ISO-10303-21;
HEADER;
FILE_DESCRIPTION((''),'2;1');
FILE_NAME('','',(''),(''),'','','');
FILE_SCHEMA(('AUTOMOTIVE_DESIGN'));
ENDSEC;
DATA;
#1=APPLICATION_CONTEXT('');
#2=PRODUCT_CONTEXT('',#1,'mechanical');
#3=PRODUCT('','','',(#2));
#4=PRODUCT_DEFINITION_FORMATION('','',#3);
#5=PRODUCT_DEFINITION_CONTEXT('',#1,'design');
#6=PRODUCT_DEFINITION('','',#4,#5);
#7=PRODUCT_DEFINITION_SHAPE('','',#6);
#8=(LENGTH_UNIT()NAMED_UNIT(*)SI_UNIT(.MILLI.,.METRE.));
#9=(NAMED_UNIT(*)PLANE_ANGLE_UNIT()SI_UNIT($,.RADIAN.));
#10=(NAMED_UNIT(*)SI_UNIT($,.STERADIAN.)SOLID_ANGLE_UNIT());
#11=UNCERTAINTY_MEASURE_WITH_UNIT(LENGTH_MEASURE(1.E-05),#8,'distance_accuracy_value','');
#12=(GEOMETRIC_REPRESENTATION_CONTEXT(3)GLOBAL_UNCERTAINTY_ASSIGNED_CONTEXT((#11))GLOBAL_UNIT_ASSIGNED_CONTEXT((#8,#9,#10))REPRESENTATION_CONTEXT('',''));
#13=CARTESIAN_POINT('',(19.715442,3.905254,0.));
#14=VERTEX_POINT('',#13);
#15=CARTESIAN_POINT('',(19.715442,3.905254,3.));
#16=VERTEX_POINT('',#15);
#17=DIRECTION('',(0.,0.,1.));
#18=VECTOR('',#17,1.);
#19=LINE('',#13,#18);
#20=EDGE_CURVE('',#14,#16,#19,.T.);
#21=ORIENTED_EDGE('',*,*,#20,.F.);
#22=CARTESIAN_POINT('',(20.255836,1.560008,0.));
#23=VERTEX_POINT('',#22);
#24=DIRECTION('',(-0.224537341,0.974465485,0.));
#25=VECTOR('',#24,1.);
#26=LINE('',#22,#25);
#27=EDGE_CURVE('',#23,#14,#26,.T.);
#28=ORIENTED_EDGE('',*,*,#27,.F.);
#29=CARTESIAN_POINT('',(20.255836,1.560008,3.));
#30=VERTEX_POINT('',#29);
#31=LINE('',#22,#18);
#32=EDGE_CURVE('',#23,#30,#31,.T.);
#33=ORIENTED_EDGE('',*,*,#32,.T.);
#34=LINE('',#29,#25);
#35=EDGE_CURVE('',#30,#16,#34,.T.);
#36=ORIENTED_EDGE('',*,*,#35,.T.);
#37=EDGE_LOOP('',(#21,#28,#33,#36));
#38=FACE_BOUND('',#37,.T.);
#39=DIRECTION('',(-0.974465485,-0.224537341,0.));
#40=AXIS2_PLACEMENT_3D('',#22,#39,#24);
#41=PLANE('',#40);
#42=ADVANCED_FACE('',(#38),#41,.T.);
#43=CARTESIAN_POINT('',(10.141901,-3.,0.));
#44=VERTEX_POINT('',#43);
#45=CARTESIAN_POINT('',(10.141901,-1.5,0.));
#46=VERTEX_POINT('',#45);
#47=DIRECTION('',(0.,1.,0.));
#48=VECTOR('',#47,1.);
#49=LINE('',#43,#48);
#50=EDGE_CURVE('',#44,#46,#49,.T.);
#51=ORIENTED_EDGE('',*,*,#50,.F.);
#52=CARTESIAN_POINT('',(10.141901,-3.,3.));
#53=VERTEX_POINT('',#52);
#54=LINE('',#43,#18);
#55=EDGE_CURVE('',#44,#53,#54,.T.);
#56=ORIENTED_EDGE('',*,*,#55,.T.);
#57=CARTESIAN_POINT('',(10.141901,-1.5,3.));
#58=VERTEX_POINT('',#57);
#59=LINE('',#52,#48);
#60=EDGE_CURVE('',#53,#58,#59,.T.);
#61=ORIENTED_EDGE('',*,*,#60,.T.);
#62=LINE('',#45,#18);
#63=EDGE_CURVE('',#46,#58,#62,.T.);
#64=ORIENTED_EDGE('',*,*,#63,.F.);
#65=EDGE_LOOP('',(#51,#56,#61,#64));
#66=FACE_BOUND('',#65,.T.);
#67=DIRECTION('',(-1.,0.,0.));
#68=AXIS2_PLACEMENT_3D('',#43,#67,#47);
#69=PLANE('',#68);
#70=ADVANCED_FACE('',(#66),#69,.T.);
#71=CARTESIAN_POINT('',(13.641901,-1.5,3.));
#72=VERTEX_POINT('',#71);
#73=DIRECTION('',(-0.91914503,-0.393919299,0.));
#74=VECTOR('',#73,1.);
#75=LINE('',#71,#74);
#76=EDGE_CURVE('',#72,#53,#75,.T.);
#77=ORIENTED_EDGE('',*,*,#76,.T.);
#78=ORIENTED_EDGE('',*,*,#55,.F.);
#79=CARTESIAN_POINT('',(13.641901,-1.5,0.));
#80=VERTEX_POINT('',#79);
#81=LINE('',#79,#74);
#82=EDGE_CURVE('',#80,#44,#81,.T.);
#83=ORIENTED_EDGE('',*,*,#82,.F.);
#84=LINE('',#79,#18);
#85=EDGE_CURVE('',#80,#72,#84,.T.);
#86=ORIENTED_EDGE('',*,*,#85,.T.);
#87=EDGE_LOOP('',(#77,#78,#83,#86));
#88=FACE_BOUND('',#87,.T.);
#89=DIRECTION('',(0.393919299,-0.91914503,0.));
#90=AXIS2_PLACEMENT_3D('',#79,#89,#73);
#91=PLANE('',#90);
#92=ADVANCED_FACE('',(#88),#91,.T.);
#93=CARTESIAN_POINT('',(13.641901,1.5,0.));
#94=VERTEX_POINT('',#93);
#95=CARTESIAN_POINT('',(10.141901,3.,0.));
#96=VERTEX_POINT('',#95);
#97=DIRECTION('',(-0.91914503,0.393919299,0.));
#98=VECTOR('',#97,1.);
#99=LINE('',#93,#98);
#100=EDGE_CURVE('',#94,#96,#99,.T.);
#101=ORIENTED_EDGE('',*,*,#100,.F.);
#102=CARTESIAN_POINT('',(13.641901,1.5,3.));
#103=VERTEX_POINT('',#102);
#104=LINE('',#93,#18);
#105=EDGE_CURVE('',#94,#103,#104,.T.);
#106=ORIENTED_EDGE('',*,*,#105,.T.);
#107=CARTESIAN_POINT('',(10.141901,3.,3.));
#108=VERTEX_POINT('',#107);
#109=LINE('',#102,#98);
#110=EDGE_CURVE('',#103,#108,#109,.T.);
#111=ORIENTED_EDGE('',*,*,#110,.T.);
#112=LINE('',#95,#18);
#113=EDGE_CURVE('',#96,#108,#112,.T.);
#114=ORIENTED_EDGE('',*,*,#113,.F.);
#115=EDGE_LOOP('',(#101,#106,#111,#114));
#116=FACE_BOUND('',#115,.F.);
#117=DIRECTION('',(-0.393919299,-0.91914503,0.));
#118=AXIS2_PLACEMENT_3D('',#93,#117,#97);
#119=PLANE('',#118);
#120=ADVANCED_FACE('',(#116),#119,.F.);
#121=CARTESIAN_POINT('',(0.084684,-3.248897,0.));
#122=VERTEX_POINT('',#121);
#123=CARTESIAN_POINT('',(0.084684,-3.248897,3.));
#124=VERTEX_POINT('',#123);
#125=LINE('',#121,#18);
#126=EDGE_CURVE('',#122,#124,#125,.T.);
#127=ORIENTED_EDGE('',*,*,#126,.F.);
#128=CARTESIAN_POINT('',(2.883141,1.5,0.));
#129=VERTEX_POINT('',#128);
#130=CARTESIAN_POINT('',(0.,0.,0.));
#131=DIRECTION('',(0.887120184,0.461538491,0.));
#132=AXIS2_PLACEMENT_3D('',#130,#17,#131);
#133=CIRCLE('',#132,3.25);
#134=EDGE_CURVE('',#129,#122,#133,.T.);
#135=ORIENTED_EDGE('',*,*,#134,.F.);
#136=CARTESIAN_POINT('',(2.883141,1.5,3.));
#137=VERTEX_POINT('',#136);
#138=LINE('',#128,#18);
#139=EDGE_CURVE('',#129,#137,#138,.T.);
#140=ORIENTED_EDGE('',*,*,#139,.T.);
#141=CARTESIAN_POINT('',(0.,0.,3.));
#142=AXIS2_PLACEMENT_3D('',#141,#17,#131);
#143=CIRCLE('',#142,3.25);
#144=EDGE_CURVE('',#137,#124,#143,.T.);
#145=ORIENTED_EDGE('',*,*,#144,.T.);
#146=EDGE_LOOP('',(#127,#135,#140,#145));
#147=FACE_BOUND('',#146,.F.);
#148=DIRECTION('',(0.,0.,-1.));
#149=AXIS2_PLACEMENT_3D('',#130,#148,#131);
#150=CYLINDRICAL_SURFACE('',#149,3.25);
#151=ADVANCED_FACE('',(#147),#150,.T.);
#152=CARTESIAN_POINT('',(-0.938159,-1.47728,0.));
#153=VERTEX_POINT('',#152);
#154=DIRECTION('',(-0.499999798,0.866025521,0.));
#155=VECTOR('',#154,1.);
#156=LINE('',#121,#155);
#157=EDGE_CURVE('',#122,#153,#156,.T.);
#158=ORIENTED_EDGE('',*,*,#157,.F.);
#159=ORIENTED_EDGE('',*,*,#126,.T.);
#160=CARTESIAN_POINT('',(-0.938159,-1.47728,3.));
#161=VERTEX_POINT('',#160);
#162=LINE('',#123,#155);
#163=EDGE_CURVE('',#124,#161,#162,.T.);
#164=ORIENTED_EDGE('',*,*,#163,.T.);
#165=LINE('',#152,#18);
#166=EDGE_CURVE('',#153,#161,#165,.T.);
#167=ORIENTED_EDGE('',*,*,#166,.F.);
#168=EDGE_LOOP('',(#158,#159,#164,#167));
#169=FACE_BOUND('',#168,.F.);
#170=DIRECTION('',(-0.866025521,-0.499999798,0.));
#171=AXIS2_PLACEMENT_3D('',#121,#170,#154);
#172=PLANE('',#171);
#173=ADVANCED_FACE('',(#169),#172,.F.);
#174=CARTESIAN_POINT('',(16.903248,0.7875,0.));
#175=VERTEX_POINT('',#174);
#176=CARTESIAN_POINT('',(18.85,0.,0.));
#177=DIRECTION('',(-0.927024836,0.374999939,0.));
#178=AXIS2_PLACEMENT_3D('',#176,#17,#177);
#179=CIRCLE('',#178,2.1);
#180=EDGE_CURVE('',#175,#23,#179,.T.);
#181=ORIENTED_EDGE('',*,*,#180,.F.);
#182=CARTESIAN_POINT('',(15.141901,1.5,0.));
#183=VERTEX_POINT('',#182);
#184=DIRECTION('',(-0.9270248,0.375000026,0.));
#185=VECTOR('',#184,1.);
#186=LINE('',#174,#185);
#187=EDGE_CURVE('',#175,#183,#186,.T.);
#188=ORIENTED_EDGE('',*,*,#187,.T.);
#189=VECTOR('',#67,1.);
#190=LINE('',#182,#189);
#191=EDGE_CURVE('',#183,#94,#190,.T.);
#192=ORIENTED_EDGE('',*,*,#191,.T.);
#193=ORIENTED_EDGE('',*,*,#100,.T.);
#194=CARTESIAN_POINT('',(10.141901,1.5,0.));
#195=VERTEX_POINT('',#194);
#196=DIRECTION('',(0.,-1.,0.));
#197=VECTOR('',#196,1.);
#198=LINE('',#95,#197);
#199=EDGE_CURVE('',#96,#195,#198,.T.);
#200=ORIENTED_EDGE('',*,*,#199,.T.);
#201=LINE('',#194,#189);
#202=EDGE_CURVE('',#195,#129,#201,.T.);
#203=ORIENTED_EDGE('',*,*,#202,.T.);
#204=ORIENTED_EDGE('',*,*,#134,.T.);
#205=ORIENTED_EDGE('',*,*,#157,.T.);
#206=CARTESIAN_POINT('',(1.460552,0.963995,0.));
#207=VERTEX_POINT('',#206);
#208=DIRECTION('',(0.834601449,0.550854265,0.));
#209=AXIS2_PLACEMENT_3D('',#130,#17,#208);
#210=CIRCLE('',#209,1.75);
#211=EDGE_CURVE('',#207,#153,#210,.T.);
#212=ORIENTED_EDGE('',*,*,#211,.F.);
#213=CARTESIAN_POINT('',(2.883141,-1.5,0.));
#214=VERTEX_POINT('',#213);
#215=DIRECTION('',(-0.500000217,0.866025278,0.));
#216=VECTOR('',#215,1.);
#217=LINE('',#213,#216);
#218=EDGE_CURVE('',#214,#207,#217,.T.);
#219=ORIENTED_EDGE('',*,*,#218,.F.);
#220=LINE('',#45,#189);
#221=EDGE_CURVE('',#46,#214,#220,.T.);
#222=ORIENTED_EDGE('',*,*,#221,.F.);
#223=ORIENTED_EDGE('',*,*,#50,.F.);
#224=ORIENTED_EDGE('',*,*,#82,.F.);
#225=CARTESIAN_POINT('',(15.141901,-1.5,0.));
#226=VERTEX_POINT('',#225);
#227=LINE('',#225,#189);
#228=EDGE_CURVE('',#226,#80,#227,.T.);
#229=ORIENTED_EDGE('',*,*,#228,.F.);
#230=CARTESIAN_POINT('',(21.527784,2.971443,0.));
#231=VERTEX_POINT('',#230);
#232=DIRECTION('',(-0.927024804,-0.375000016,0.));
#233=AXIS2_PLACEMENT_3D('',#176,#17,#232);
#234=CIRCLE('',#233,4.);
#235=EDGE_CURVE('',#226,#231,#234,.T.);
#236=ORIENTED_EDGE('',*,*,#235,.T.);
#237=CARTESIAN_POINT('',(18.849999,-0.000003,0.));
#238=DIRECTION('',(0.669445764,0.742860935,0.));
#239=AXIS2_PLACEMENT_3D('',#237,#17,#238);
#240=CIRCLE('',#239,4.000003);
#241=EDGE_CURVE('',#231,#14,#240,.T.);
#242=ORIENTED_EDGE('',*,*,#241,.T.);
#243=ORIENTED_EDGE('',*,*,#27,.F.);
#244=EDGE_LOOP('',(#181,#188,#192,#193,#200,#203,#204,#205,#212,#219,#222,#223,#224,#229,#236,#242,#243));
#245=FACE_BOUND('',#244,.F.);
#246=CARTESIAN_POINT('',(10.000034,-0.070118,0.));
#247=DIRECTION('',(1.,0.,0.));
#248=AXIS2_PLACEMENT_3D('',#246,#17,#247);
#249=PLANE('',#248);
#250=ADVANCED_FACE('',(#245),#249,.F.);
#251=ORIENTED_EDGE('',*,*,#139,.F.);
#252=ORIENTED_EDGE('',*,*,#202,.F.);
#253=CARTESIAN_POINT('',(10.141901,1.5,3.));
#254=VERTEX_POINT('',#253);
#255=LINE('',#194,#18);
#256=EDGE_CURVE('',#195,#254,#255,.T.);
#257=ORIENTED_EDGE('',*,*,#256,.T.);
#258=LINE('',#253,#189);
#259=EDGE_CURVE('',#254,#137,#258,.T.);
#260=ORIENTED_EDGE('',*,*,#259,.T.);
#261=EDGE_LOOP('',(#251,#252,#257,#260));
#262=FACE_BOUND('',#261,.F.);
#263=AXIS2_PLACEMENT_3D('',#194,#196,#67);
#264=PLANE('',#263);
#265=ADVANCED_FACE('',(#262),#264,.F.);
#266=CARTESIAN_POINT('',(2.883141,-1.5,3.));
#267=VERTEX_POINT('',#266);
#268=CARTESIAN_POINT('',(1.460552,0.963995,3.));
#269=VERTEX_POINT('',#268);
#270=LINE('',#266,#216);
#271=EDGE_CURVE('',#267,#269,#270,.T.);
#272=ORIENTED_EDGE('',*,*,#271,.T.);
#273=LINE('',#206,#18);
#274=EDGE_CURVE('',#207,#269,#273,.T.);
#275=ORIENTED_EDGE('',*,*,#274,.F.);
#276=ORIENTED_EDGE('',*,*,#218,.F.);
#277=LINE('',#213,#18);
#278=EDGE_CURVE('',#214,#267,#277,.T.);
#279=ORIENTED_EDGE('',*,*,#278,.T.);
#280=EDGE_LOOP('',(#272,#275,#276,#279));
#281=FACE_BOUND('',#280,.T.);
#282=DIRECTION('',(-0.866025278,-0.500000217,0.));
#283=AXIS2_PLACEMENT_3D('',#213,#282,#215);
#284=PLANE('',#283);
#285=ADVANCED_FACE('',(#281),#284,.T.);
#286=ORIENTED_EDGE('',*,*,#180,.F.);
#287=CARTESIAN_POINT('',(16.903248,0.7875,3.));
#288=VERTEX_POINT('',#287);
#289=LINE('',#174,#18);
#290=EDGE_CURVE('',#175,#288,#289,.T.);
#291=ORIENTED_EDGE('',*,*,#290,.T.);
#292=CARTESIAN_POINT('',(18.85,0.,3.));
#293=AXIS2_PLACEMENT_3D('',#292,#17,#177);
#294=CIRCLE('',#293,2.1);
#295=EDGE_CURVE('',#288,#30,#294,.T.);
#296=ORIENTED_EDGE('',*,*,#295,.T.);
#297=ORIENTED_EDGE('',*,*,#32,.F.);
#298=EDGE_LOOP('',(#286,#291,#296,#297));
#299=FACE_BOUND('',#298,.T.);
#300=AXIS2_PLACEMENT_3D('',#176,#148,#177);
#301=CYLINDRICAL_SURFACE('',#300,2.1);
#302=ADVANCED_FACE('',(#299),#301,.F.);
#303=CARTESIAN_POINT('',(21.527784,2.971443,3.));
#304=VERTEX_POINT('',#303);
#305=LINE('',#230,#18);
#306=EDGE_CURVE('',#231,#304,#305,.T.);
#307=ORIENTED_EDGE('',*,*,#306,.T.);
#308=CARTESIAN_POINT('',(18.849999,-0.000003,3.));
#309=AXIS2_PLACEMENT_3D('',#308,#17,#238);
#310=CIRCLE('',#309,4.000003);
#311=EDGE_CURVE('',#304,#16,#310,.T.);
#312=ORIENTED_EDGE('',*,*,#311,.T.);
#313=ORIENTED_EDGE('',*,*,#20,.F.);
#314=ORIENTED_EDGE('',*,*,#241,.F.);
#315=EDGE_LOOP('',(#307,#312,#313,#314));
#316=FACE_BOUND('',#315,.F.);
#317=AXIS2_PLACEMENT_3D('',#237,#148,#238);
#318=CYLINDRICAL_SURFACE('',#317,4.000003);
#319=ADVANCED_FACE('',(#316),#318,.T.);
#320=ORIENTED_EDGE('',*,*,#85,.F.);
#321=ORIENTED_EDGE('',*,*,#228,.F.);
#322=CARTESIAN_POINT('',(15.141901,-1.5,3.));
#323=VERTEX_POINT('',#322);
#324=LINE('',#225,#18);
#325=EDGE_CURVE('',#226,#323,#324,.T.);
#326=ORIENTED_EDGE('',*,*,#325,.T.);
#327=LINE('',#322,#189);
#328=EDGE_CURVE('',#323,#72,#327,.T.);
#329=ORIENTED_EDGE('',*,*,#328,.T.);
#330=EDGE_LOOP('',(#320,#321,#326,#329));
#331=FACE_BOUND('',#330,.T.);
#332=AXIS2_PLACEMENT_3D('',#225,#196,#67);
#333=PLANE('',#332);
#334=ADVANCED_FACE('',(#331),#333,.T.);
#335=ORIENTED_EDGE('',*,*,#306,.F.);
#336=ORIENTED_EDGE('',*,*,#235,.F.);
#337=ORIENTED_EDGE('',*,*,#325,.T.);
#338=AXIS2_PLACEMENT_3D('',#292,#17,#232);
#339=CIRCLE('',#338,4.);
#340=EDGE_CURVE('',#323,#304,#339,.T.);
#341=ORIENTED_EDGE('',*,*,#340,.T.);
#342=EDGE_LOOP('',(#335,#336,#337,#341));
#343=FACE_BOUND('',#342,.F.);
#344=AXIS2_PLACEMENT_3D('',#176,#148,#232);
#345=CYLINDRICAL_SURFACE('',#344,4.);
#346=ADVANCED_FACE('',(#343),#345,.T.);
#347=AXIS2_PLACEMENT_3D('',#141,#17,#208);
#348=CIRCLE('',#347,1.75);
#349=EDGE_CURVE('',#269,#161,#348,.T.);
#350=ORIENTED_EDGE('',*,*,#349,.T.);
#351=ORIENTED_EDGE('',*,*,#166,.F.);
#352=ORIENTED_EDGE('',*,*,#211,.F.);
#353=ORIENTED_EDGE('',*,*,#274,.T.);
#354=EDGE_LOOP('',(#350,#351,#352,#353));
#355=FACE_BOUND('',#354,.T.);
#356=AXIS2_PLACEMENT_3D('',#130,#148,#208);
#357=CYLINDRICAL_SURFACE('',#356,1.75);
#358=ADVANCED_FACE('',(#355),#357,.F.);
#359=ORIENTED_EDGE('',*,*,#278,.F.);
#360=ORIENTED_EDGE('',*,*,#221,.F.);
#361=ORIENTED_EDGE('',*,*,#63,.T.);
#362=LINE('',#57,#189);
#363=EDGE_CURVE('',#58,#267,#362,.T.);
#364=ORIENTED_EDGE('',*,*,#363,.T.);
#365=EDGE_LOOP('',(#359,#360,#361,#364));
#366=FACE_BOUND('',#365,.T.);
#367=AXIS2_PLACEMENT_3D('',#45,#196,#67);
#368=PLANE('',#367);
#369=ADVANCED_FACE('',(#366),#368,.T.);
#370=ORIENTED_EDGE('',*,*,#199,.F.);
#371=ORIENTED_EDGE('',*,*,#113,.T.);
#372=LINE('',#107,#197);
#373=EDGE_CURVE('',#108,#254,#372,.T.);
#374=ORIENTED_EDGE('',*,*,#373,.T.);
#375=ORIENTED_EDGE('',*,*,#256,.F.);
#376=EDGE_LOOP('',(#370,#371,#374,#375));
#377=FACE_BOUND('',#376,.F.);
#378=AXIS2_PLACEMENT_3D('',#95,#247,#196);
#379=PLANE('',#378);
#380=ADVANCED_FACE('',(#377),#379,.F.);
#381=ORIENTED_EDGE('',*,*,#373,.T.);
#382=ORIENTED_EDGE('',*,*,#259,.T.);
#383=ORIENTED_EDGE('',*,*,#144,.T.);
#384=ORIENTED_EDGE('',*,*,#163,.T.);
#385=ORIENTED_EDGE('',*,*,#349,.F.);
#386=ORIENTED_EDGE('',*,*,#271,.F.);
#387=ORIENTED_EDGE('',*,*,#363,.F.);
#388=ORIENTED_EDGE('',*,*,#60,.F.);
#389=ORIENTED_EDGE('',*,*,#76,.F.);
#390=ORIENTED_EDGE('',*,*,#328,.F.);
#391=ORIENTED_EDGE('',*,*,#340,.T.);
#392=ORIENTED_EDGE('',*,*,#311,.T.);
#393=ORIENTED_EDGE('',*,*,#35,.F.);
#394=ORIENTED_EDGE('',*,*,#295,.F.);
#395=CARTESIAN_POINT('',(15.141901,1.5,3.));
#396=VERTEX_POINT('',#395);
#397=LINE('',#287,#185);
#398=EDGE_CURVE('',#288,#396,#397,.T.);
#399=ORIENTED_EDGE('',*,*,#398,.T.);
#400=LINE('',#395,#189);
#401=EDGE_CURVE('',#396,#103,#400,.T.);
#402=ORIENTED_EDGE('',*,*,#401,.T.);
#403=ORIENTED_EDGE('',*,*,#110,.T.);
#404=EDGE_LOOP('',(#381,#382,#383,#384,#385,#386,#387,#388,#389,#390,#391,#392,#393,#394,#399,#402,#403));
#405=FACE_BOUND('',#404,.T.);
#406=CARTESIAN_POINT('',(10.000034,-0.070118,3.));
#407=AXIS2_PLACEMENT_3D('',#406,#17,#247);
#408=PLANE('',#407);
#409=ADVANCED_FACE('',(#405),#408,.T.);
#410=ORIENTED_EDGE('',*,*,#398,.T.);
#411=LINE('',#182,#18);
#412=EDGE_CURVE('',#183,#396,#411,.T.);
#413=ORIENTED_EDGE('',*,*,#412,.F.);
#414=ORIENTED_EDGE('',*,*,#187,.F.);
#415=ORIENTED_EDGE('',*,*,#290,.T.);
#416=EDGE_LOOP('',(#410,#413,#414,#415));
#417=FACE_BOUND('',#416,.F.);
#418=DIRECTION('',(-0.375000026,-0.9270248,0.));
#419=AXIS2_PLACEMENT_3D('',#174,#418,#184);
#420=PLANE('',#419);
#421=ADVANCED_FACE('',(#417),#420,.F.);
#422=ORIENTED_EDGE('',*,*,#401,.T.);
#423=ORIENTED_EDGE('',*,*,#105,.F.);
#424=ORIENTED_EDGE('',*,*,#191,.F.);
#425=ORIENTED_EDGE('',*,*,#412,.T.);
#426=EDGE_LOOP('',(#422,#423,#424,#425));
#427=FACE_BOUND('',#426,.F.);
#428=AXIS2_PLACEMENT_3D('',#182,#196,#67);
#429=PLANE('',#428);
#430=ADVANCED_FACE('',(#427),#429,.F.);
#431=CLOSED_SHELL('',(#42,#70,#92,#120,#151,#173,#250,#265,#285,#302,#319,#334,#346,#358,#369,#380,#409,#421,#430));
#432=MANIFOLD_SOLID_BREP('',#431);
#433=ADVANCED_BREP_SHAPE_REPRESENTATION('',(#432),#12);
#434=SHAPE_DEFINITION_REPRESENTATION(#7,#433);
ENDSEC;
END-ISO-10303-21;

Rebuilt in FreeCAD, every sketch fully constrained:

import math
import FreeCAD as App
import Part
import Sketcher
Q = App.Units.Quantity

doc = App.newDocument("Part")
body = doc.addObject("PartDesign::Body", "Body")

sketch1 = body.newObject("Sketcher::SketchObject", "Sketch")
sketch1.AttachmentSupport = (doc.getObject("XY_Plane"), [""])
sketch1.MapMode = "FlatFace"
sketch1.addGeometry([
    Part.ArcOfCircle(Part.Circle(App.Vector(18.9, 0, 0), App.Vector(0, 0, 1), 4), math.radians(-158), math.radians(48)),
    Part.ArcOfCircle(Part.Circle(App.Vector(18.8, 0, 0), App.Vector(0, 0, 1), 4), math.radians(48), math.radians(78)),
    Part.LineSegment(App.Vector(19.7, 3.9, 0), App.Vector(20.3, 1.6, 0)),
    Part.ArcOfCircle(Part.Circle(App.Vector(18.8, 0, 0), App.Vector(0, 0, 1), 2.1), math.radians(158), math.radians(408)),
    Part.LineSegment(App.Vector(16.9, 0.8, 0), App.Vector(15.1, 1.5, 0)),
    Part.LineSegment(App.Vector(15.1, 1.5, 0), App.Vector(13.6, 1.5, 0)),
    Part.LineSegment(App.Vector(13.6, 1.5, 0), App.Vector(10.1, 3, 0)),
    Part.LineSegment(App.Vector(10.1, 3, 0), App.Vector(10.1, 1.5, 0)),
    Part.LineSegment(App.Vector(10.1, 1.5, 0), App.Vector(2.9, 1.5, 0)),
    Part.ArcOfCircle(Part.Circle(App.Vector(0, 0, 0), App.Vector(0, 0, 1), 3.3), math.radians(27), math.radians(271)),
    Part.LineSegment(App.Vector(0.1, -3.2, 0), App.Vector(-0.9, -1.5, 0)),
    Part.ArcOfCircle(Part.Circle(App.Vector(0, 0, 0), App.Vector(0, 0, 1), 1.7), math.radians(33), math.radians(238)),
    Part.LineSegment(App.Vector(1.5, 1, 0), App.Vector(2.9, -1.5, 0)),
    Part.LineSegment(App.Vector(2.9, -1.5, 0), App.Vector(10.1, -1.5, 0)),
    Part.LineSegment(App.Vector(10.1, -1.5, 0), App.Vector(10.1, -3, 0)),
    Part.LineSegment(App.Vector(10.1, -3, 0), App.Vector(13.6, -1.5, 0)),
    Part.LineSegment(App.Vector(13.6, -1.5, 0), App.Vector(15.1, -1.5, 0)),
], False)
sketch1.addConstraint([
    Sketcher.Constraint("Tangent", 0, 2, 1, 1),
    Sketcher.Constraint("Coincident", 1, 2, 2, 1),
    Sketcher.Constraint("Coincident", 2, 2, 3, 2),
    Sketcher.Constraint("Coincident", 3, 1, 4, 1),
    Sketcher.Constraint("Coincident", 4, 2, 5, 1),
    Sketcher.Constraint("Coincident", 5, 2, 6, 1),
    Sketcher.Constraint("Coincident", 6, 2, 7, 1),
    Sketcher.Constraint("Coincident", 7, 2, 8, 1),
    Sketcher.Constraint("Coincident", 8, 2, 9, 1),
    Sketcher.Constraint("Coincident", 9, 2, 10, 1),
    Sketcher.Constraint("Coincident", 10, 2, 11, 2),
    Sketcher.Constraint("Coincident", 11, 1, 12, 1),
    Sketcher.Constraint("Coincident", 12, 2, 13, 1),
    Sketcher.Constraint("Coincident", 13, 2, 14, 1),
    Sketcher.Constraint("Coincident", 14, 2, 15, 1),
    Sketcher.Constraint("Coincident", 15, 2, 16, 1),
    Sketcher.Constraint("Coincident", 16, 2, 0, 1),
    Sketcher.Constraint("Horizontal", 5),
    Sketcher.Constraint("Vertical", 7),
    Sketcher.Constraint("Horizontal", 8),
    Sketcher.Constraint("Horizontal", 13),
    Sketcher.Constraint("Vertical", 14),
    Sketcher.Constraint("Horizontal", 16),
    Sketcher.Constraint("Coincident", 9, 3, -1, 1),
    Sketcher.Constraint("Coincident", 11, 3, -1, 1),
    Sketcher.Constraint("Coincident", 3, 3, 0, 3),
    Sketcher.Constraint("Symmetric", 8, 2, 12, 2, -1),
    Sketcher.Constraint("Symmetric", 6, 2, 14, 2, -1),
    Sketcher.Constraint("Symmetric", 5, 2, 15, 2, -1),
    Sketcher.Constraint("PointOnObject", 0, 3, -1),
    Sketcher.Constraint("Parallel", 10, 12),
    Sketcher.Constraint("Horizontal", 5, 2, 7, 2),
    Sketcher.Constraint("Vertical", 4, 2, 16, 2),
    Sketcher.Constraint("Equal", 16, 7),
    Sketcher.Constraint("Radius", 0, 4.0),
    Sketcher.Constraint("Radius", 3, 2.1),
    Sketcher.Constraint("Angle", 10, Q("119.999987 deg")),
    Sketcher.Constraint("Radius", 9, 3.25),
    Sketcher.Constraint("Radius", 11, 1.75),
    Sketcher.Constraint("DistanceX", 5, 2, 5, 1, 1.5),
    Sketcher.Constraint("DistanceY", -1, 1, 6, 2, 3.0),
    Sketcher.Constraint("DistanceX", 6, 2, 4, 2, 5.0),
    Sketcher.Constraint("DistanceX", -1, 1, 0, 3, 18.85),
    Sketcher.Constraint("DistanceX", -1, 1, 1, 3, 18.849999),
    Sketcher.Constraint("Distance", 2, 2.4067),
    Sketcher.Constraint("DistanceY", -1, 1, 3, 1, 0.7875),
    Sketcher.Constraint("DistanceX", 10, 2, 8, 2, 3.8213),
    Sketcher.Constraint("DistanceX", -1, 1, 1, 2, 19.715442),
    Sketcher.Constraint("DistanceX", 1, 2, 0, 2, 1.812342),
])
pad1 = body.newObject("PartDesign::Pad", "Pad")
pad1.Profile = sketch1
pad1.Length = 3

doc.recompute()
